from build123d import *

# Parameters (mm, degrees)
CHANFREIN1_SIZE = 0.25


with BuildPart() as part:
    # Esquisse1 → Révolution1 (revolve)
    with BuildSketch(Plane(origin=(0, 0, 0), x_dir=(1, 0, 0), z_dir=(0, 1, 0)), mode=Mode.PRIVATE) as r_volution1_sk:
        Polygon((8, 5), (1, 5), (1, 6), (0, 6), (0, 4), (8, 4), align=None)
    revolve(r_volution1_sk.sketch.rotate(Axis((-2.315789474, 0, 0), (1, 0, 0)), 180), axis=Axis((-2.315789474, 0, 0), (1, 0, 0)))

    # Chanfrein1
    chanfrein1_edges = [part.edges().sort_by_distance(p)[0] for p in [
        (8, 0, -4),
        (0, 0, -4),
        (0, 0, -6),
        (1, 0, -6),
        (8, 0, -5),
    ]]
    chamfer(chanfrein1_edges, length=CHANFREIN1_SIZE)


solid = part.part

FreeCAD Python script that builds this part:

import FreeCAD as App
import Part
import Sketcher


def edges_at(feature, points):
    """Names of the edges that pass closest to the given points."""
    edges = feature.Shape.Edges
    near = lambda p: min(range(len(edges)), key=lambda i: edges[i].distToShape(Part.Vertex(*p))[0])
    return sorted({f"Edge{near(p) + 1}" for p in points})


def add_polygon(sketch, points):
    """Adds a closed chain of lines whose ends are joined by coincident constraints."""
    first, n = sketch.GeometryCount, len(points)
    for a, b in zip(points, points[1:] + points[:1]):
        sketch.addGeometry(Part.LineSegment(App.Vector(*a, 0), App.Vector(*b, 0)), False)
    for i in range(n):
        sketch.addConstraint(Sketcher.Constraint("Coincident", first + i, 2, first + (i + 1) % n, 1))

doc = App.newDocument("Part")
body = doc.addObject("PartDesign::Body", "Body")

sketch1 = doc.addObject("Sketcher::SketchObject", "Sketch")
body.addObject(sketch1)
sketch1.AttachmentSupport = (doc.XZ_Plane, [""])
sketch1.MapMode = "FlatFace"
add_polygon(sketch1, [(8, -5), (1, -5), (1, -6), (0, -6), (0, -4), (8, -4)])
sketch1.addConstraint([
    Sketcher.Constraint("Horizontal", 0),
    Sketcher.Constraint("Vertical", 1),
    Sketcher.Constraint("Horizontal", 2),
    Sketcher.Constraint("Vertical", 3),
    Sketcher.Constraint("Horizontal", 4),
    Sketcher.Constraint("Vertical", 5),
    Sketcher.Constraint("PointOnObject", 2, 2, -2),
    Sketcher.Constraint("Equal", 2, 1),
    Sketcher.Constraint("Equal", 1, 5),
    Sketcher.Constraint("DistanceX", 0, 2, 0, 1, 7.0),
    Sketcher.Constraint("DistanceX", 2, 2, 2, 1, 1.0),
    Sketcher.Constraint("DistanceY", 0, 2, -1, 1, 5.0),
])
revolution = doc.addObject("PartDesign::Revolution", "Revolution")
body.addObject(revolution)
revolution.Profile = sketch1
revolution.ReferenceAxis = (sketch1, ["H_Axis"])
revolution.Angle = 360
doc.recompute()

chamfer = doc.addObject("PartDesign::Chamfer", "Chamfer")
body.addObject(chamfer)
chamfer.Base = (revolution, edges_at(revolution, [
    (8, 0, -4),
    (0, 0, -4),
    (0, 0, -6),
    (1, 0, -6),
    (8, 0, -5),
]))
chamfer.Size = 0.25

doc.recompute()
